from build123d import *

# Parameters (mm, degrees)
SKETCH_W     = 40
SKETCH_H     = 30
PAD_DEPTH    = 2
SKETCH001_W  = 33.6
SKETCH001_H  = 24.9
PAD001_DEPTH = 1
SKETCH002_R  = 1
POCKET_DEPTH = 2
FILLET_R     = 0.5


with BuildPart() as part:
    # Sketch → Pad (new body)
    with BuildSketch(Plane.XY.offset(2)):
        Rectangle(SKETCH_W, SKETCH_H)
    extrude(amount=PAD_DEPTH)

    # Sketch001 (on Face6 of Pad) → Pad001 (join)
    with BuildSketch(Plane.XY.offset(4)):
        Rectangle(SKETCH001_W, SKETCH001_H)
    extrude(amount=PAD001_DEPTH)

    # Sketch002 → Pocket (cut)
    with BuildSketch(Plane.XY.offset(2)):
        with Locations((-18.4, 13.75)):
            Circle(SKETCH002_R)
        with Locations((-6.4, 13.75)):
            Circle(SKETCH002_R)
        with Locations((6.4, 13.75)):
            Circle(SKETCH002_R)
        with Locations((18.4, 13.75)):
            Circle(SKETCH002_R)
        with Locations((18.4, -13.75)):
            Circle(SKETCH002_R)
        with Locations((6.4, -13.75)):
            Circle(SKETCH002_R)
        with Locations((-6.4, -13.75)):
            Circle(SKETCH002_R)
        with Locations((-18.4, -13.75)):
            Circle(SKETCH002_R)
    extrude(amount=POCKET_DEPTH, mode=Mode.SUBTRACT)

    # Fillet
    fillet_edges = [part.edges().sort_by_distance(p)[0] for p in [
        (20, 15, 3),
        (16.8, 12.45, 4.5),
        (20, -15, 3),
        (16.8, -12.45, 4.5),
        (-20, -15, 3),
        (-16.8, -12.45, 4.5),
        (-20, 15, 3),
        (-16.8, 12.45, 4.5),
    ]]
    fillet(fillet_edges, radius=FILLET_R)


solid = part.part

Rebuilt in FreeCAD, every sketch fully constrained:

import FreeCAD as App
import Part
import Sketcher
from FreeCAD import Vector


def edges_at(feature, points):
    """Names of the edges that pass closest to the given points."""
    edges = feature.Shape.Edges
    near = lambda p: min(range(len(edges)), key=lambda i: edges[i].distToShape(Part.Vertex(*p))[0])
    return sorted({f"Edge{near(p) + 1}" for p in points})

doc = App.newDocument("Part")
body = doc.addObject("PartDesign::Body", "Body")

# Sketch on XY plane
sketch1 = body.newObject("Sketcher::SketchObject", "Sketch")
sketch1.AttachmentSupport = (doc.getObject("XY_Plane"), [""])
sketch1.MapMode = "FlatFace"
sketch1.AttachmentOffset = App.Placement(Vector(0, 0, 2), App.Rotation())
sketch1.addGeometry(Part.LineSegment(Vector(-20, 15, 0), Vector(-20, -15, 0)), False)
sketch1.addGeometry(Part.LineSegment(Vector(-20, -15, 0), Vector(20, -15, 0)), False)
sketch1.addGeometry(Part.LineSegment(Vector(20, -15, 0), Vector(20, 15, 0)), False)
sketch1.addGeometry(Part.LineSegment(Vector(20, 15, 0), Vector(-20, 15, 0)), False)
sketch1.addConstraint(Sketcher.Constraint("Coincident", 0, 2, 1, 1))
sketch1.addConstraint(Sketcher.Constraint("Coincident", 1, 2, 2, 1))
sketch1.addConstraint(Sketcher.Constraint("Coincident", 2, 2, 3, 1))
sketch1.addConstraint(Sketcher.Constraint("Coincident", 3, 2, 0, 1))
sketch1.addConstraint(Sketcher.Constraint("Vertical", 0))
sketch1.addConstraint(Sketcher.Constraint("Horizontal", 1))
sketch1.addConstraint(Sketcher.Constraint("Vertical", 2))
sketch1.addConstraint(Sketcher.Constraint("Horizontal", 3))
sketch1.addConstraint(Sketcher.Constraint("Symmetric", 0, 2, 2, 2, -1, 1))
sketch1.addConstraint(Sketcher.Constraint("DistanceX", 1, 1, 1, 2, 40.0))
sketch1.addConstraint(Sketcher.Constraint("DistanceY", 0, 2, 0, 1, 30.0))
pad1 = body.newObject("PartDesign::Pad", "Pad")
pad1.Profile = sketch1
pad1.Length = 2

# Sketch on XY plane
sketch2 = body.newObject("Sketcher::SketchObject", "Sketch001")
sketch2.AttachmentSupport = (doc.getObject("XY_Plane"), [""])
sketch2.MapMode = "FlatFace"
sketch2.AttachmentOffset = App.Placement(Vector(0, 0, 4), App.Rotation())
sketch2.addGeometry(Part.LineSegment(Vector(-17, 12, 0), Vector(-17, -12, 0)), False)
sketch2.addGeometry(Part.LineSegment(Vector(-17, -12, 0), Vector(17, -12, 0)), False)
sketch2.addGeometry(Part.LineSegment(Vector(17, -12, 0), Vector(17, 12, 0)), False)
sketch2.addGeometry(Part.LineSegment(Vector(17, 12, 0), Vector(-17, 12, 0)), False)
sketch2.addConstraint(Sketcher.Constraint("Coincident", 0, 2, 1, 1))
sketch2.addConstraint(Sketcher.Constraint("Coincident", 1, 2, 2, 1))
sketch2.addConstraint(Sketcher.Constraint("Coincident", 2, 2, 3, 1))
sketch2.addConstraint(Sketcher.Constraint("Coincident", 3, 2, 0, 1))
sketch2.addConstraint(Sketcher.Constraint("Vertical", 0))
sketch2.addConstraint(Sketcher.Constraint("Horizontal", 1))
sketch2.addConstraint(Sketcher.Constraint("Vertical", 2))
sketch2.addConstraint(Sketcher.Constraint("Horizontal", 3))
sketch2.addConstraint(Sketcher.Constraint("Symmetric", 0, 2, 2, 2, -1, 1))
sketch2.addConstraint(Sketcher.Constraint("DistanceX", 1, 1, 1, 2, 33.6))
sketch2.addConstraint(Sketcher.Constraint("DistanceY", 0, 2, 0, 1, 24.9))
pad2 = body.newObject("PartDesign::Pad", "Pad001")
pad2.Profile = sketch2
pad2.Length = 1

# Sketch on XY plane
sketch3 = body.newObject("Sketcher::SketchObject", "Sketch002")
sketch3.AttachmentSupport = (doc.getObject("XY_Plane"), [""])
sketch3.MapMode = "FlatFace"
sketch3.AttachmentOffset = App.Placement(Vector(0, 0, 2), App.Rotation())
sketch3.addGeometry(Part.Circle(Vector(-18.4, 13.8, 0), Vector(0, 0, 1), 1), False)
sketch3.addGeometry(Part.Circle(Vector(-6.4, 13.8, 0), Vector(0, 0, 1), 1), False)
sketch3.addGeometry(Part.Circle(Vector(6.4, 13.8, 0), Vector(0, 0, 1), 1), False)
sketch3.addGeometry(Part.Circle(Vector(18.4, 13.8, 0), Vector(0, 0, 1), 1), False)
sketch3.addGeometry(Part.Circle(Vector(18.4, -13.8, 0), Vector(0, 0, 1), 1), False)
sketch3.addGeometry(Part.Circle(Vector(6.4, -13.8, 0), Vector(0, 0, 1), 1), False)
sketch3.addGeometry(Part.Circle(Vector(-6.4, -13.8, 0), Vector(0, 0, 1), 1), False)
sketch3.addGeometry(Part.Circle(Vector(-18.4, -13.8, 0), Vector(0, 0, 1), 1), False)
sketch3.addConstraint(Sketcher.Constraint("Equal", 0, 1))
sketch3.addConstraint(Sketcher.Constraint("Equal", 1, 2))
sketch3.addConstraint(Sketcher.Constraint("Equal", 2, 3))
sketch3.addConstraint(Sketcher.Constraint("Equal", 3, 4))
sketch3.addConstraint(Sketcher.Constraint("Equal", 4, 5))
sketch3.addConstraint(Sketcher.Constraint("Equal", 5, 6))
sketch3.addConstraint(Sketcher.Constraint("Equal", 6, 7))
sketch3.addConstraint(Sketcher.Constraint("Symmetric", 0, 3, 4, 3, -1, 1))
sketch3.addConstraint(Sketcher.Constraint("Symmetric", 1, 3, 5, 3, -1, 1))
sketch3.addConstraint(Sketcher.Constraint("Symmetric", 2, 3, 6, 3, -1, 1))
sketch3.addConstraint(Sketcher.Constraint("Symmetric", 3, 3, 7, 3, -1, 1))
sketch3.addConstraint(Sketcher.Constraint("Symmetric", 1, 3, 2, 3, -2))
sketch3.addConstraint(Sketcher.Constraint("Symmetric", 0, 3, 3, 3, -2))
sketch3.addConstraint(Sketcher.Constraint("Horizontal", 0, 3, 1, 3))
sketch3.addConstraint(Sketcher.Constraint("Diameter", 0, 2.0))
sketch3.addConstraint(Sketcher.Constraint("DistanceX", 0, 3, 1, 3, 12.0))
sketch3.addConstraint(Sketcher.Constraint("DistanceX", 0, 3, -1, 1, 18.4))
sketch3.addConstraint(Sketcher.Constraint("DistanceY", 4, 3, 3, 3, 27.5))
pocket1 = body.newObject("PartDesign::Pocket", "Pocket")
pocket1.Profile = sketch3
pocket1.Length = 2
pocket1.Reversed = True
doc.recompute()

fillet = body.newObject("PartDesign::Fillet", "Fillet")
fillet.Base = (pocket1, edges_at(pocket1, [
    (20, 15, 3),
    (16.8, 12.45, 4.5),
    (20, -15, 3),
    (16.8, -12.45, 4.5),
    (-20, -15, 3),
    (-16.8, -12.45, 4.5),
    (-20, 15, 3),
    (-16.8, 12.45, 4.5),
]))
fillet.Radius = 0.5

doc.recompute()
